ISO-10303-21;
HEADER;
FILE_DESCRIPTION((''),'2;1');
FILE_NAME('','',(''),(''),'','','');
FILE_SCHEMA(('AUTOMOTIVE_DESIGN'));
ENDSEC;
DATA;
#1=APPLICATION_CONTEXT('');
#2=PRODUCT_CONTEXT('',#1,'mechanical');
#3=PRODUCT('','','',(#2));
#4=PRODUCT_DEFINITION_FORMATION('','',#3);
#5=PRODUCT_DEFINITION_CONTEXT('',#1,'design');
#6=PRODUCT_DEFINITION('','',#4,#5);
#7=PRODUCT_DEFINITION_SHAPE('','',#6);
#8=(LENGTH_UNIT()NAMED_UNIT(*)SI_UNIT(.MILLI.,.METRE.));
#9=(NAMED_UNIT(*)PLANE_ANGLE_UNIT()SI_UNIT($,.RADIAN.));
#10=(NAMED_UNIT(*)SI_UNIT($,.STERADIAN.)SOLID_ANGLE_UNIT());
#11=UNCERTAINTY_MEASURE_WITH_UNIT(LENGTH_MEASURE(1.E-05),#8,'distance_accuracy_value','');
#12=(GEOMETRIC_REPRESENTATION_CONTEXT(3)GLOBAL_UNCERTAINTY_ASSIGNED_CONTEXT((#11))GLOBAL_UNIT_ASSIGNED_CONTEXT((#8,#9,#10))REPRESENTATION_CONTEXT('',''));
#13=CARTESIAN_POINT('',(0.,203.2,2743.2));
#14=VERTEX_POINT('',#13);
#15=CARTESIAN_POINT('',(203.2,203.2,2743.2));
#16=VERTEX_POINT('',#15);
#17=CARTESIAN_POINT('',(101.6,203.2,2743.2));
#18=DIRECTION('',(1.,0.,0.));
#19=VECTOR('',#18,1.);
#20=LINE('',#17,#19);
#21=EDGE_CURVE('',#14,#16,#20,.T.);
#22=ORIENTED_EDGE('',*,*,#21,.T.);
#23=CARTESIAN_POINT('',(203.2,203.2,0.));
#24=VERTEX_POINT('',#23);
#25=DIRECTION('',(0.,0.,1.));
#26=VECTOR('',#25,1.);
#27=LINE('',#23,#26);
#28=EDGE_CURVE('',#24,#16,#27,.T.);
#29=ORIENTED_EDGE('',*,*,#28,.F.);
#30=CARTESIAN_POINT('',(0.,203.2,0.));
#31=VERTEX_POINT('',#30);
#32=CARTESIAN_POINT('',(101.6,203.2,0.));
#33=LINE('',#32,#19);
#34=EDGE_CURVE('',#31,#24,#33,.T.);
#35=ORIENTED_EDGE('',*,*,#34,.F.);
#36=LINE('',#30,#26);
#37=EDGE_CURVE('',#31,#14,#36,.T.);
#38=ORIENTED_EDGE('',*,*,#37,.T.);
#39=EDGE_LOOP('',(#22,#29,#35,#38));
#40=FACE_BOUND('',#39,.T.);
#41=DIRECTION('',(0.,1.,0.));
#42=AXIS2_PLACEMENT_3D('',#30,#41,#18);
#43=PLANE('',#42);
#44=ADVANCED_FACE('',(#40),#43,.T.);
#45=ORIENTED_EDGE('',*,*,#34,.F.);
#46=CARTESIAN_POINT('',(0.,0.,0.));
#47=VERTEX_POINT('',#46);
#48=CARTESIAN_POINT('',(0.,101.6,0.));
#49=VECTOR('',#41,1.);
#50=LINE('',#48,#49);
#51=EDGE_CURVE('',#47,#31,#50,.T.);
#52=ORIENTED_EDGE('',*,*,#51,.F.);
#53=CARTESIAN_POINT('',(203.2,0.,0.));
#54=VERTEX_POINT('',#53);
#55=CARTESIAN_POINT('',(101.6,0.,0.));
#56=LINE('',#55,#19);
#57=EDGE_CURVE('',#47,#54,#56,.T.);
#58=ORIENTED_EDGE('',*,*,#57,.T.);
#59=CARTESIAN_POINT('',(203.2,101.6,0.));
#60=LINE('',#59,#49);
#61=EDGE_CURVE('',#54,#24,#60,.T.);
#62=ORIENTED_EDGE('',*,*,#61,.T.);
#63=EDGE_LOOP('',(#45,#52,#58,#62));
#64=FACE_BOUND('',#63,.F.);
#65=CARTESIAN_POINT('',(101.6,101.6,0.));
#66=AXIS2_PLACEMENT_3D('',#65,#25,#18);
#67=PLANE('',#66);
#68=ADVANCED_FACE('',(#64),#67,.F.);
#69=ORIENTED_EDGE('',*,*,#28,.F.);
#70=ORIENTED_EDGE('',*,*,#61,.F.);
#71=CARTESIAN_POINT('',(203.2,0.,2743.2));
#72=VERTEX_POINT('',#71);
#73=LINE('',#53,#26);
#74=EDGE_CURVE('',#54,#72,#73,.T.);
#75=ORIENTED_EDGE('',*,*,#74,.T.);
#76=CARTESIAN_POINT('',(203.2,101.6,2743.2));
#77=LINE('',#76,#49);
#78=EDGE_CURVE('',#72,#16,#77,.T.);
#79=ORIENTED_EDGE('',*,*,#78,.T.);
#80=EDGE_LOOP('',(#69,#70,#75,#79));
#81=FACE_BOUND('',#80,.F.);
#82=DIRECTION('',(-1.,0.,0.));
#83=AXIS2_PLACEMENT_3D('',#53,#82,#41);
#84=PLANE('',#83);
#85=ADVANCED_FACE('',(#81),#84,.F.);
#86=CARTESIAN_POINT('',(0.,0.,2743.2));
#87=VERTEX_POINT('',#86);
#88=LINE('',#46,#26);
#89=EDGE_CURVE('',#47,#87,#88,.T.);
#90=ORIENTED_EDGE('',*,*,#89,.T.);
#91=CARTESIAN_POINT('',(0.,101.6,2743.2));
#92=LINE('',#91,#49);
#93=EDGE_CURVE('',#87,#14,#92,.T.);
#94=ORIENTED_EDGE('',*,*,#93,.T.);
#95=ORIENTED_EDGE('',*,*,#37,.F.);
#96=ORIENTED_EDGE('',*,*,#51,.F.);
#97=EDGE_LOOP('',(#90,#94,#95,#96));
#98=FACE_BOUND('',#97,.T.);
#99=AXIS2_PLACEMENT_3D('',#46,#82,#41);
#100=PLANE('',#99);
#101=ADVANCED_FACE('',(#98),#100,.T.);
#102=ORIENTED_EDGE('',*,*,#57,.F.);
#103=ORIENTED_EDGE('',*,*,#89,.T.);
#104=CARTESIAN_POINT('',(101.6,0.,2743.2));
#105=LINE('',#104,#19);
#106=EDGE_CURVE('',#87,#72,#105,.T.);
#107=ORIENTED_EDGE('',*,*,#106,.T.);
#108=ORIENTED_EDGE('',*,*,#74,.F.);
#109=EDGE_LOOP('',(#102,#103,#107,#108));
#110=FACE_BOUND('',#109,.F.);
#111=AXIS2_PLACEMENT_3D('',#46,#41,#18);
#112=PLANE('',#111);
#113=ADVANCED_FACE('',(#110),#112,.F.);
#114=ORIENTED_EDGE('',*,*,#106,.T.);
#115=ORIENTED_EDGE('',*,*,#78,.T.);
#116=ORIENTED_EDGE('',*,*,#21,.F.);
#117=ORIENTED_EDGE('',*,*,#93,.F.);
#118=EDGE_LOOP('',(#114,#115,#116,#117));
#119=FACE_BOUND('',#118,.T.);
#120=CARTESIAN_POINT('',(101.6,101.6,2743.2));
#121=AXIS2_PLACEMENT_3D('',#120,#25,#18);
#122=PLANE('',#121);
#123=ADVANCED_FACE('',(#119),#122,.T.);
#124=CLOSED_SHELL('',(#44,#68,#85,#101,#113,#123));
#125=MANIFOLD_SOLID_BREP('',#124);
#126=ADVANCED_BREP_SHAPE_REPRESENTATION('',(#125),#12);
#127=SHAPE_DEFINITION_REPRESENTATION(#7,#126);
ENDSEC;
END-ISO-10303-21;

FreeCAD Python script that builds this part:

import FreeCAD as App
import Part
import Sketcher
from FreeCAD import Vector
Q = App.Units.Quantity

doc = App.newDocument("Part")
body = doc.addObject("PartDesign::Body", "Body")

# Sketch on XY plane
sketch1 = doc.addObject("Sketcher::SketchObject", "Sketch")
body.addObject(sketch1)
sketch1.AttachmentSupport = (doc.XY_Plane, [""])
sketch1.MapMode = "FlatFace"
sketch1.addGeometry(Part.LineSegment(Vector(0, 203, 0), Vector(0, 0, 0)), False)
sketch1.addGeometry(Part.LineSegment(Vector(0, 0, 0), Vector(203, 0, 0)), False)
sketch1.addGeometry(Part.LineSegment(Vector(203, 0, 0), Vector(203, 203, 0)), False)
sketch1.addGeometry(Part.LineSegment(Vector(203, 203, 0), Vector(0, 203, 0)), False)
sketch1.addConstraint(Sketcher.Constraint("Coincident", 0, 2, 1, 1))
sketch1.addConstraint(Sketcher.Constraint("Coincident", 1, 2, 2, 1))
sketch1.addConstraint(Sketcher.Constraint("Coincident", 2, 2, 3, 1))
sketch1.addConstraint(Sketcher.Constraint("Coincident", 3, 2, 0, 1))
sketch1.addConstraint(Sketcher.Constraint("Vertical", 0))
sketch1.addConstraint(Sketcher.Constraint("Horizontal", 1))
sketch1.addConstraint(Sketcher.Constraint("Vertical", 2))
sketch1.addConstraint(Sketcher.Constraint("Horizontal", 3))
sketch1.addConstraint(Sketcher.Constraint("Coincident", 0, 2, -1, 1))
sketch1.addConstraint(Sketcher.Constraint("Equal", 3, 0))
sketch1.addConstraint(Sketcher.Constraint("DistanceX", 1, 1, 1, 2, Q("8 in")))
pad1 = doc.addObject("PartDesign::Pad", "Pad")
body.addObject(pad1)
pad1.Profile = sketch1
pad1.Length = Q("108 in")

doc.recompute()
